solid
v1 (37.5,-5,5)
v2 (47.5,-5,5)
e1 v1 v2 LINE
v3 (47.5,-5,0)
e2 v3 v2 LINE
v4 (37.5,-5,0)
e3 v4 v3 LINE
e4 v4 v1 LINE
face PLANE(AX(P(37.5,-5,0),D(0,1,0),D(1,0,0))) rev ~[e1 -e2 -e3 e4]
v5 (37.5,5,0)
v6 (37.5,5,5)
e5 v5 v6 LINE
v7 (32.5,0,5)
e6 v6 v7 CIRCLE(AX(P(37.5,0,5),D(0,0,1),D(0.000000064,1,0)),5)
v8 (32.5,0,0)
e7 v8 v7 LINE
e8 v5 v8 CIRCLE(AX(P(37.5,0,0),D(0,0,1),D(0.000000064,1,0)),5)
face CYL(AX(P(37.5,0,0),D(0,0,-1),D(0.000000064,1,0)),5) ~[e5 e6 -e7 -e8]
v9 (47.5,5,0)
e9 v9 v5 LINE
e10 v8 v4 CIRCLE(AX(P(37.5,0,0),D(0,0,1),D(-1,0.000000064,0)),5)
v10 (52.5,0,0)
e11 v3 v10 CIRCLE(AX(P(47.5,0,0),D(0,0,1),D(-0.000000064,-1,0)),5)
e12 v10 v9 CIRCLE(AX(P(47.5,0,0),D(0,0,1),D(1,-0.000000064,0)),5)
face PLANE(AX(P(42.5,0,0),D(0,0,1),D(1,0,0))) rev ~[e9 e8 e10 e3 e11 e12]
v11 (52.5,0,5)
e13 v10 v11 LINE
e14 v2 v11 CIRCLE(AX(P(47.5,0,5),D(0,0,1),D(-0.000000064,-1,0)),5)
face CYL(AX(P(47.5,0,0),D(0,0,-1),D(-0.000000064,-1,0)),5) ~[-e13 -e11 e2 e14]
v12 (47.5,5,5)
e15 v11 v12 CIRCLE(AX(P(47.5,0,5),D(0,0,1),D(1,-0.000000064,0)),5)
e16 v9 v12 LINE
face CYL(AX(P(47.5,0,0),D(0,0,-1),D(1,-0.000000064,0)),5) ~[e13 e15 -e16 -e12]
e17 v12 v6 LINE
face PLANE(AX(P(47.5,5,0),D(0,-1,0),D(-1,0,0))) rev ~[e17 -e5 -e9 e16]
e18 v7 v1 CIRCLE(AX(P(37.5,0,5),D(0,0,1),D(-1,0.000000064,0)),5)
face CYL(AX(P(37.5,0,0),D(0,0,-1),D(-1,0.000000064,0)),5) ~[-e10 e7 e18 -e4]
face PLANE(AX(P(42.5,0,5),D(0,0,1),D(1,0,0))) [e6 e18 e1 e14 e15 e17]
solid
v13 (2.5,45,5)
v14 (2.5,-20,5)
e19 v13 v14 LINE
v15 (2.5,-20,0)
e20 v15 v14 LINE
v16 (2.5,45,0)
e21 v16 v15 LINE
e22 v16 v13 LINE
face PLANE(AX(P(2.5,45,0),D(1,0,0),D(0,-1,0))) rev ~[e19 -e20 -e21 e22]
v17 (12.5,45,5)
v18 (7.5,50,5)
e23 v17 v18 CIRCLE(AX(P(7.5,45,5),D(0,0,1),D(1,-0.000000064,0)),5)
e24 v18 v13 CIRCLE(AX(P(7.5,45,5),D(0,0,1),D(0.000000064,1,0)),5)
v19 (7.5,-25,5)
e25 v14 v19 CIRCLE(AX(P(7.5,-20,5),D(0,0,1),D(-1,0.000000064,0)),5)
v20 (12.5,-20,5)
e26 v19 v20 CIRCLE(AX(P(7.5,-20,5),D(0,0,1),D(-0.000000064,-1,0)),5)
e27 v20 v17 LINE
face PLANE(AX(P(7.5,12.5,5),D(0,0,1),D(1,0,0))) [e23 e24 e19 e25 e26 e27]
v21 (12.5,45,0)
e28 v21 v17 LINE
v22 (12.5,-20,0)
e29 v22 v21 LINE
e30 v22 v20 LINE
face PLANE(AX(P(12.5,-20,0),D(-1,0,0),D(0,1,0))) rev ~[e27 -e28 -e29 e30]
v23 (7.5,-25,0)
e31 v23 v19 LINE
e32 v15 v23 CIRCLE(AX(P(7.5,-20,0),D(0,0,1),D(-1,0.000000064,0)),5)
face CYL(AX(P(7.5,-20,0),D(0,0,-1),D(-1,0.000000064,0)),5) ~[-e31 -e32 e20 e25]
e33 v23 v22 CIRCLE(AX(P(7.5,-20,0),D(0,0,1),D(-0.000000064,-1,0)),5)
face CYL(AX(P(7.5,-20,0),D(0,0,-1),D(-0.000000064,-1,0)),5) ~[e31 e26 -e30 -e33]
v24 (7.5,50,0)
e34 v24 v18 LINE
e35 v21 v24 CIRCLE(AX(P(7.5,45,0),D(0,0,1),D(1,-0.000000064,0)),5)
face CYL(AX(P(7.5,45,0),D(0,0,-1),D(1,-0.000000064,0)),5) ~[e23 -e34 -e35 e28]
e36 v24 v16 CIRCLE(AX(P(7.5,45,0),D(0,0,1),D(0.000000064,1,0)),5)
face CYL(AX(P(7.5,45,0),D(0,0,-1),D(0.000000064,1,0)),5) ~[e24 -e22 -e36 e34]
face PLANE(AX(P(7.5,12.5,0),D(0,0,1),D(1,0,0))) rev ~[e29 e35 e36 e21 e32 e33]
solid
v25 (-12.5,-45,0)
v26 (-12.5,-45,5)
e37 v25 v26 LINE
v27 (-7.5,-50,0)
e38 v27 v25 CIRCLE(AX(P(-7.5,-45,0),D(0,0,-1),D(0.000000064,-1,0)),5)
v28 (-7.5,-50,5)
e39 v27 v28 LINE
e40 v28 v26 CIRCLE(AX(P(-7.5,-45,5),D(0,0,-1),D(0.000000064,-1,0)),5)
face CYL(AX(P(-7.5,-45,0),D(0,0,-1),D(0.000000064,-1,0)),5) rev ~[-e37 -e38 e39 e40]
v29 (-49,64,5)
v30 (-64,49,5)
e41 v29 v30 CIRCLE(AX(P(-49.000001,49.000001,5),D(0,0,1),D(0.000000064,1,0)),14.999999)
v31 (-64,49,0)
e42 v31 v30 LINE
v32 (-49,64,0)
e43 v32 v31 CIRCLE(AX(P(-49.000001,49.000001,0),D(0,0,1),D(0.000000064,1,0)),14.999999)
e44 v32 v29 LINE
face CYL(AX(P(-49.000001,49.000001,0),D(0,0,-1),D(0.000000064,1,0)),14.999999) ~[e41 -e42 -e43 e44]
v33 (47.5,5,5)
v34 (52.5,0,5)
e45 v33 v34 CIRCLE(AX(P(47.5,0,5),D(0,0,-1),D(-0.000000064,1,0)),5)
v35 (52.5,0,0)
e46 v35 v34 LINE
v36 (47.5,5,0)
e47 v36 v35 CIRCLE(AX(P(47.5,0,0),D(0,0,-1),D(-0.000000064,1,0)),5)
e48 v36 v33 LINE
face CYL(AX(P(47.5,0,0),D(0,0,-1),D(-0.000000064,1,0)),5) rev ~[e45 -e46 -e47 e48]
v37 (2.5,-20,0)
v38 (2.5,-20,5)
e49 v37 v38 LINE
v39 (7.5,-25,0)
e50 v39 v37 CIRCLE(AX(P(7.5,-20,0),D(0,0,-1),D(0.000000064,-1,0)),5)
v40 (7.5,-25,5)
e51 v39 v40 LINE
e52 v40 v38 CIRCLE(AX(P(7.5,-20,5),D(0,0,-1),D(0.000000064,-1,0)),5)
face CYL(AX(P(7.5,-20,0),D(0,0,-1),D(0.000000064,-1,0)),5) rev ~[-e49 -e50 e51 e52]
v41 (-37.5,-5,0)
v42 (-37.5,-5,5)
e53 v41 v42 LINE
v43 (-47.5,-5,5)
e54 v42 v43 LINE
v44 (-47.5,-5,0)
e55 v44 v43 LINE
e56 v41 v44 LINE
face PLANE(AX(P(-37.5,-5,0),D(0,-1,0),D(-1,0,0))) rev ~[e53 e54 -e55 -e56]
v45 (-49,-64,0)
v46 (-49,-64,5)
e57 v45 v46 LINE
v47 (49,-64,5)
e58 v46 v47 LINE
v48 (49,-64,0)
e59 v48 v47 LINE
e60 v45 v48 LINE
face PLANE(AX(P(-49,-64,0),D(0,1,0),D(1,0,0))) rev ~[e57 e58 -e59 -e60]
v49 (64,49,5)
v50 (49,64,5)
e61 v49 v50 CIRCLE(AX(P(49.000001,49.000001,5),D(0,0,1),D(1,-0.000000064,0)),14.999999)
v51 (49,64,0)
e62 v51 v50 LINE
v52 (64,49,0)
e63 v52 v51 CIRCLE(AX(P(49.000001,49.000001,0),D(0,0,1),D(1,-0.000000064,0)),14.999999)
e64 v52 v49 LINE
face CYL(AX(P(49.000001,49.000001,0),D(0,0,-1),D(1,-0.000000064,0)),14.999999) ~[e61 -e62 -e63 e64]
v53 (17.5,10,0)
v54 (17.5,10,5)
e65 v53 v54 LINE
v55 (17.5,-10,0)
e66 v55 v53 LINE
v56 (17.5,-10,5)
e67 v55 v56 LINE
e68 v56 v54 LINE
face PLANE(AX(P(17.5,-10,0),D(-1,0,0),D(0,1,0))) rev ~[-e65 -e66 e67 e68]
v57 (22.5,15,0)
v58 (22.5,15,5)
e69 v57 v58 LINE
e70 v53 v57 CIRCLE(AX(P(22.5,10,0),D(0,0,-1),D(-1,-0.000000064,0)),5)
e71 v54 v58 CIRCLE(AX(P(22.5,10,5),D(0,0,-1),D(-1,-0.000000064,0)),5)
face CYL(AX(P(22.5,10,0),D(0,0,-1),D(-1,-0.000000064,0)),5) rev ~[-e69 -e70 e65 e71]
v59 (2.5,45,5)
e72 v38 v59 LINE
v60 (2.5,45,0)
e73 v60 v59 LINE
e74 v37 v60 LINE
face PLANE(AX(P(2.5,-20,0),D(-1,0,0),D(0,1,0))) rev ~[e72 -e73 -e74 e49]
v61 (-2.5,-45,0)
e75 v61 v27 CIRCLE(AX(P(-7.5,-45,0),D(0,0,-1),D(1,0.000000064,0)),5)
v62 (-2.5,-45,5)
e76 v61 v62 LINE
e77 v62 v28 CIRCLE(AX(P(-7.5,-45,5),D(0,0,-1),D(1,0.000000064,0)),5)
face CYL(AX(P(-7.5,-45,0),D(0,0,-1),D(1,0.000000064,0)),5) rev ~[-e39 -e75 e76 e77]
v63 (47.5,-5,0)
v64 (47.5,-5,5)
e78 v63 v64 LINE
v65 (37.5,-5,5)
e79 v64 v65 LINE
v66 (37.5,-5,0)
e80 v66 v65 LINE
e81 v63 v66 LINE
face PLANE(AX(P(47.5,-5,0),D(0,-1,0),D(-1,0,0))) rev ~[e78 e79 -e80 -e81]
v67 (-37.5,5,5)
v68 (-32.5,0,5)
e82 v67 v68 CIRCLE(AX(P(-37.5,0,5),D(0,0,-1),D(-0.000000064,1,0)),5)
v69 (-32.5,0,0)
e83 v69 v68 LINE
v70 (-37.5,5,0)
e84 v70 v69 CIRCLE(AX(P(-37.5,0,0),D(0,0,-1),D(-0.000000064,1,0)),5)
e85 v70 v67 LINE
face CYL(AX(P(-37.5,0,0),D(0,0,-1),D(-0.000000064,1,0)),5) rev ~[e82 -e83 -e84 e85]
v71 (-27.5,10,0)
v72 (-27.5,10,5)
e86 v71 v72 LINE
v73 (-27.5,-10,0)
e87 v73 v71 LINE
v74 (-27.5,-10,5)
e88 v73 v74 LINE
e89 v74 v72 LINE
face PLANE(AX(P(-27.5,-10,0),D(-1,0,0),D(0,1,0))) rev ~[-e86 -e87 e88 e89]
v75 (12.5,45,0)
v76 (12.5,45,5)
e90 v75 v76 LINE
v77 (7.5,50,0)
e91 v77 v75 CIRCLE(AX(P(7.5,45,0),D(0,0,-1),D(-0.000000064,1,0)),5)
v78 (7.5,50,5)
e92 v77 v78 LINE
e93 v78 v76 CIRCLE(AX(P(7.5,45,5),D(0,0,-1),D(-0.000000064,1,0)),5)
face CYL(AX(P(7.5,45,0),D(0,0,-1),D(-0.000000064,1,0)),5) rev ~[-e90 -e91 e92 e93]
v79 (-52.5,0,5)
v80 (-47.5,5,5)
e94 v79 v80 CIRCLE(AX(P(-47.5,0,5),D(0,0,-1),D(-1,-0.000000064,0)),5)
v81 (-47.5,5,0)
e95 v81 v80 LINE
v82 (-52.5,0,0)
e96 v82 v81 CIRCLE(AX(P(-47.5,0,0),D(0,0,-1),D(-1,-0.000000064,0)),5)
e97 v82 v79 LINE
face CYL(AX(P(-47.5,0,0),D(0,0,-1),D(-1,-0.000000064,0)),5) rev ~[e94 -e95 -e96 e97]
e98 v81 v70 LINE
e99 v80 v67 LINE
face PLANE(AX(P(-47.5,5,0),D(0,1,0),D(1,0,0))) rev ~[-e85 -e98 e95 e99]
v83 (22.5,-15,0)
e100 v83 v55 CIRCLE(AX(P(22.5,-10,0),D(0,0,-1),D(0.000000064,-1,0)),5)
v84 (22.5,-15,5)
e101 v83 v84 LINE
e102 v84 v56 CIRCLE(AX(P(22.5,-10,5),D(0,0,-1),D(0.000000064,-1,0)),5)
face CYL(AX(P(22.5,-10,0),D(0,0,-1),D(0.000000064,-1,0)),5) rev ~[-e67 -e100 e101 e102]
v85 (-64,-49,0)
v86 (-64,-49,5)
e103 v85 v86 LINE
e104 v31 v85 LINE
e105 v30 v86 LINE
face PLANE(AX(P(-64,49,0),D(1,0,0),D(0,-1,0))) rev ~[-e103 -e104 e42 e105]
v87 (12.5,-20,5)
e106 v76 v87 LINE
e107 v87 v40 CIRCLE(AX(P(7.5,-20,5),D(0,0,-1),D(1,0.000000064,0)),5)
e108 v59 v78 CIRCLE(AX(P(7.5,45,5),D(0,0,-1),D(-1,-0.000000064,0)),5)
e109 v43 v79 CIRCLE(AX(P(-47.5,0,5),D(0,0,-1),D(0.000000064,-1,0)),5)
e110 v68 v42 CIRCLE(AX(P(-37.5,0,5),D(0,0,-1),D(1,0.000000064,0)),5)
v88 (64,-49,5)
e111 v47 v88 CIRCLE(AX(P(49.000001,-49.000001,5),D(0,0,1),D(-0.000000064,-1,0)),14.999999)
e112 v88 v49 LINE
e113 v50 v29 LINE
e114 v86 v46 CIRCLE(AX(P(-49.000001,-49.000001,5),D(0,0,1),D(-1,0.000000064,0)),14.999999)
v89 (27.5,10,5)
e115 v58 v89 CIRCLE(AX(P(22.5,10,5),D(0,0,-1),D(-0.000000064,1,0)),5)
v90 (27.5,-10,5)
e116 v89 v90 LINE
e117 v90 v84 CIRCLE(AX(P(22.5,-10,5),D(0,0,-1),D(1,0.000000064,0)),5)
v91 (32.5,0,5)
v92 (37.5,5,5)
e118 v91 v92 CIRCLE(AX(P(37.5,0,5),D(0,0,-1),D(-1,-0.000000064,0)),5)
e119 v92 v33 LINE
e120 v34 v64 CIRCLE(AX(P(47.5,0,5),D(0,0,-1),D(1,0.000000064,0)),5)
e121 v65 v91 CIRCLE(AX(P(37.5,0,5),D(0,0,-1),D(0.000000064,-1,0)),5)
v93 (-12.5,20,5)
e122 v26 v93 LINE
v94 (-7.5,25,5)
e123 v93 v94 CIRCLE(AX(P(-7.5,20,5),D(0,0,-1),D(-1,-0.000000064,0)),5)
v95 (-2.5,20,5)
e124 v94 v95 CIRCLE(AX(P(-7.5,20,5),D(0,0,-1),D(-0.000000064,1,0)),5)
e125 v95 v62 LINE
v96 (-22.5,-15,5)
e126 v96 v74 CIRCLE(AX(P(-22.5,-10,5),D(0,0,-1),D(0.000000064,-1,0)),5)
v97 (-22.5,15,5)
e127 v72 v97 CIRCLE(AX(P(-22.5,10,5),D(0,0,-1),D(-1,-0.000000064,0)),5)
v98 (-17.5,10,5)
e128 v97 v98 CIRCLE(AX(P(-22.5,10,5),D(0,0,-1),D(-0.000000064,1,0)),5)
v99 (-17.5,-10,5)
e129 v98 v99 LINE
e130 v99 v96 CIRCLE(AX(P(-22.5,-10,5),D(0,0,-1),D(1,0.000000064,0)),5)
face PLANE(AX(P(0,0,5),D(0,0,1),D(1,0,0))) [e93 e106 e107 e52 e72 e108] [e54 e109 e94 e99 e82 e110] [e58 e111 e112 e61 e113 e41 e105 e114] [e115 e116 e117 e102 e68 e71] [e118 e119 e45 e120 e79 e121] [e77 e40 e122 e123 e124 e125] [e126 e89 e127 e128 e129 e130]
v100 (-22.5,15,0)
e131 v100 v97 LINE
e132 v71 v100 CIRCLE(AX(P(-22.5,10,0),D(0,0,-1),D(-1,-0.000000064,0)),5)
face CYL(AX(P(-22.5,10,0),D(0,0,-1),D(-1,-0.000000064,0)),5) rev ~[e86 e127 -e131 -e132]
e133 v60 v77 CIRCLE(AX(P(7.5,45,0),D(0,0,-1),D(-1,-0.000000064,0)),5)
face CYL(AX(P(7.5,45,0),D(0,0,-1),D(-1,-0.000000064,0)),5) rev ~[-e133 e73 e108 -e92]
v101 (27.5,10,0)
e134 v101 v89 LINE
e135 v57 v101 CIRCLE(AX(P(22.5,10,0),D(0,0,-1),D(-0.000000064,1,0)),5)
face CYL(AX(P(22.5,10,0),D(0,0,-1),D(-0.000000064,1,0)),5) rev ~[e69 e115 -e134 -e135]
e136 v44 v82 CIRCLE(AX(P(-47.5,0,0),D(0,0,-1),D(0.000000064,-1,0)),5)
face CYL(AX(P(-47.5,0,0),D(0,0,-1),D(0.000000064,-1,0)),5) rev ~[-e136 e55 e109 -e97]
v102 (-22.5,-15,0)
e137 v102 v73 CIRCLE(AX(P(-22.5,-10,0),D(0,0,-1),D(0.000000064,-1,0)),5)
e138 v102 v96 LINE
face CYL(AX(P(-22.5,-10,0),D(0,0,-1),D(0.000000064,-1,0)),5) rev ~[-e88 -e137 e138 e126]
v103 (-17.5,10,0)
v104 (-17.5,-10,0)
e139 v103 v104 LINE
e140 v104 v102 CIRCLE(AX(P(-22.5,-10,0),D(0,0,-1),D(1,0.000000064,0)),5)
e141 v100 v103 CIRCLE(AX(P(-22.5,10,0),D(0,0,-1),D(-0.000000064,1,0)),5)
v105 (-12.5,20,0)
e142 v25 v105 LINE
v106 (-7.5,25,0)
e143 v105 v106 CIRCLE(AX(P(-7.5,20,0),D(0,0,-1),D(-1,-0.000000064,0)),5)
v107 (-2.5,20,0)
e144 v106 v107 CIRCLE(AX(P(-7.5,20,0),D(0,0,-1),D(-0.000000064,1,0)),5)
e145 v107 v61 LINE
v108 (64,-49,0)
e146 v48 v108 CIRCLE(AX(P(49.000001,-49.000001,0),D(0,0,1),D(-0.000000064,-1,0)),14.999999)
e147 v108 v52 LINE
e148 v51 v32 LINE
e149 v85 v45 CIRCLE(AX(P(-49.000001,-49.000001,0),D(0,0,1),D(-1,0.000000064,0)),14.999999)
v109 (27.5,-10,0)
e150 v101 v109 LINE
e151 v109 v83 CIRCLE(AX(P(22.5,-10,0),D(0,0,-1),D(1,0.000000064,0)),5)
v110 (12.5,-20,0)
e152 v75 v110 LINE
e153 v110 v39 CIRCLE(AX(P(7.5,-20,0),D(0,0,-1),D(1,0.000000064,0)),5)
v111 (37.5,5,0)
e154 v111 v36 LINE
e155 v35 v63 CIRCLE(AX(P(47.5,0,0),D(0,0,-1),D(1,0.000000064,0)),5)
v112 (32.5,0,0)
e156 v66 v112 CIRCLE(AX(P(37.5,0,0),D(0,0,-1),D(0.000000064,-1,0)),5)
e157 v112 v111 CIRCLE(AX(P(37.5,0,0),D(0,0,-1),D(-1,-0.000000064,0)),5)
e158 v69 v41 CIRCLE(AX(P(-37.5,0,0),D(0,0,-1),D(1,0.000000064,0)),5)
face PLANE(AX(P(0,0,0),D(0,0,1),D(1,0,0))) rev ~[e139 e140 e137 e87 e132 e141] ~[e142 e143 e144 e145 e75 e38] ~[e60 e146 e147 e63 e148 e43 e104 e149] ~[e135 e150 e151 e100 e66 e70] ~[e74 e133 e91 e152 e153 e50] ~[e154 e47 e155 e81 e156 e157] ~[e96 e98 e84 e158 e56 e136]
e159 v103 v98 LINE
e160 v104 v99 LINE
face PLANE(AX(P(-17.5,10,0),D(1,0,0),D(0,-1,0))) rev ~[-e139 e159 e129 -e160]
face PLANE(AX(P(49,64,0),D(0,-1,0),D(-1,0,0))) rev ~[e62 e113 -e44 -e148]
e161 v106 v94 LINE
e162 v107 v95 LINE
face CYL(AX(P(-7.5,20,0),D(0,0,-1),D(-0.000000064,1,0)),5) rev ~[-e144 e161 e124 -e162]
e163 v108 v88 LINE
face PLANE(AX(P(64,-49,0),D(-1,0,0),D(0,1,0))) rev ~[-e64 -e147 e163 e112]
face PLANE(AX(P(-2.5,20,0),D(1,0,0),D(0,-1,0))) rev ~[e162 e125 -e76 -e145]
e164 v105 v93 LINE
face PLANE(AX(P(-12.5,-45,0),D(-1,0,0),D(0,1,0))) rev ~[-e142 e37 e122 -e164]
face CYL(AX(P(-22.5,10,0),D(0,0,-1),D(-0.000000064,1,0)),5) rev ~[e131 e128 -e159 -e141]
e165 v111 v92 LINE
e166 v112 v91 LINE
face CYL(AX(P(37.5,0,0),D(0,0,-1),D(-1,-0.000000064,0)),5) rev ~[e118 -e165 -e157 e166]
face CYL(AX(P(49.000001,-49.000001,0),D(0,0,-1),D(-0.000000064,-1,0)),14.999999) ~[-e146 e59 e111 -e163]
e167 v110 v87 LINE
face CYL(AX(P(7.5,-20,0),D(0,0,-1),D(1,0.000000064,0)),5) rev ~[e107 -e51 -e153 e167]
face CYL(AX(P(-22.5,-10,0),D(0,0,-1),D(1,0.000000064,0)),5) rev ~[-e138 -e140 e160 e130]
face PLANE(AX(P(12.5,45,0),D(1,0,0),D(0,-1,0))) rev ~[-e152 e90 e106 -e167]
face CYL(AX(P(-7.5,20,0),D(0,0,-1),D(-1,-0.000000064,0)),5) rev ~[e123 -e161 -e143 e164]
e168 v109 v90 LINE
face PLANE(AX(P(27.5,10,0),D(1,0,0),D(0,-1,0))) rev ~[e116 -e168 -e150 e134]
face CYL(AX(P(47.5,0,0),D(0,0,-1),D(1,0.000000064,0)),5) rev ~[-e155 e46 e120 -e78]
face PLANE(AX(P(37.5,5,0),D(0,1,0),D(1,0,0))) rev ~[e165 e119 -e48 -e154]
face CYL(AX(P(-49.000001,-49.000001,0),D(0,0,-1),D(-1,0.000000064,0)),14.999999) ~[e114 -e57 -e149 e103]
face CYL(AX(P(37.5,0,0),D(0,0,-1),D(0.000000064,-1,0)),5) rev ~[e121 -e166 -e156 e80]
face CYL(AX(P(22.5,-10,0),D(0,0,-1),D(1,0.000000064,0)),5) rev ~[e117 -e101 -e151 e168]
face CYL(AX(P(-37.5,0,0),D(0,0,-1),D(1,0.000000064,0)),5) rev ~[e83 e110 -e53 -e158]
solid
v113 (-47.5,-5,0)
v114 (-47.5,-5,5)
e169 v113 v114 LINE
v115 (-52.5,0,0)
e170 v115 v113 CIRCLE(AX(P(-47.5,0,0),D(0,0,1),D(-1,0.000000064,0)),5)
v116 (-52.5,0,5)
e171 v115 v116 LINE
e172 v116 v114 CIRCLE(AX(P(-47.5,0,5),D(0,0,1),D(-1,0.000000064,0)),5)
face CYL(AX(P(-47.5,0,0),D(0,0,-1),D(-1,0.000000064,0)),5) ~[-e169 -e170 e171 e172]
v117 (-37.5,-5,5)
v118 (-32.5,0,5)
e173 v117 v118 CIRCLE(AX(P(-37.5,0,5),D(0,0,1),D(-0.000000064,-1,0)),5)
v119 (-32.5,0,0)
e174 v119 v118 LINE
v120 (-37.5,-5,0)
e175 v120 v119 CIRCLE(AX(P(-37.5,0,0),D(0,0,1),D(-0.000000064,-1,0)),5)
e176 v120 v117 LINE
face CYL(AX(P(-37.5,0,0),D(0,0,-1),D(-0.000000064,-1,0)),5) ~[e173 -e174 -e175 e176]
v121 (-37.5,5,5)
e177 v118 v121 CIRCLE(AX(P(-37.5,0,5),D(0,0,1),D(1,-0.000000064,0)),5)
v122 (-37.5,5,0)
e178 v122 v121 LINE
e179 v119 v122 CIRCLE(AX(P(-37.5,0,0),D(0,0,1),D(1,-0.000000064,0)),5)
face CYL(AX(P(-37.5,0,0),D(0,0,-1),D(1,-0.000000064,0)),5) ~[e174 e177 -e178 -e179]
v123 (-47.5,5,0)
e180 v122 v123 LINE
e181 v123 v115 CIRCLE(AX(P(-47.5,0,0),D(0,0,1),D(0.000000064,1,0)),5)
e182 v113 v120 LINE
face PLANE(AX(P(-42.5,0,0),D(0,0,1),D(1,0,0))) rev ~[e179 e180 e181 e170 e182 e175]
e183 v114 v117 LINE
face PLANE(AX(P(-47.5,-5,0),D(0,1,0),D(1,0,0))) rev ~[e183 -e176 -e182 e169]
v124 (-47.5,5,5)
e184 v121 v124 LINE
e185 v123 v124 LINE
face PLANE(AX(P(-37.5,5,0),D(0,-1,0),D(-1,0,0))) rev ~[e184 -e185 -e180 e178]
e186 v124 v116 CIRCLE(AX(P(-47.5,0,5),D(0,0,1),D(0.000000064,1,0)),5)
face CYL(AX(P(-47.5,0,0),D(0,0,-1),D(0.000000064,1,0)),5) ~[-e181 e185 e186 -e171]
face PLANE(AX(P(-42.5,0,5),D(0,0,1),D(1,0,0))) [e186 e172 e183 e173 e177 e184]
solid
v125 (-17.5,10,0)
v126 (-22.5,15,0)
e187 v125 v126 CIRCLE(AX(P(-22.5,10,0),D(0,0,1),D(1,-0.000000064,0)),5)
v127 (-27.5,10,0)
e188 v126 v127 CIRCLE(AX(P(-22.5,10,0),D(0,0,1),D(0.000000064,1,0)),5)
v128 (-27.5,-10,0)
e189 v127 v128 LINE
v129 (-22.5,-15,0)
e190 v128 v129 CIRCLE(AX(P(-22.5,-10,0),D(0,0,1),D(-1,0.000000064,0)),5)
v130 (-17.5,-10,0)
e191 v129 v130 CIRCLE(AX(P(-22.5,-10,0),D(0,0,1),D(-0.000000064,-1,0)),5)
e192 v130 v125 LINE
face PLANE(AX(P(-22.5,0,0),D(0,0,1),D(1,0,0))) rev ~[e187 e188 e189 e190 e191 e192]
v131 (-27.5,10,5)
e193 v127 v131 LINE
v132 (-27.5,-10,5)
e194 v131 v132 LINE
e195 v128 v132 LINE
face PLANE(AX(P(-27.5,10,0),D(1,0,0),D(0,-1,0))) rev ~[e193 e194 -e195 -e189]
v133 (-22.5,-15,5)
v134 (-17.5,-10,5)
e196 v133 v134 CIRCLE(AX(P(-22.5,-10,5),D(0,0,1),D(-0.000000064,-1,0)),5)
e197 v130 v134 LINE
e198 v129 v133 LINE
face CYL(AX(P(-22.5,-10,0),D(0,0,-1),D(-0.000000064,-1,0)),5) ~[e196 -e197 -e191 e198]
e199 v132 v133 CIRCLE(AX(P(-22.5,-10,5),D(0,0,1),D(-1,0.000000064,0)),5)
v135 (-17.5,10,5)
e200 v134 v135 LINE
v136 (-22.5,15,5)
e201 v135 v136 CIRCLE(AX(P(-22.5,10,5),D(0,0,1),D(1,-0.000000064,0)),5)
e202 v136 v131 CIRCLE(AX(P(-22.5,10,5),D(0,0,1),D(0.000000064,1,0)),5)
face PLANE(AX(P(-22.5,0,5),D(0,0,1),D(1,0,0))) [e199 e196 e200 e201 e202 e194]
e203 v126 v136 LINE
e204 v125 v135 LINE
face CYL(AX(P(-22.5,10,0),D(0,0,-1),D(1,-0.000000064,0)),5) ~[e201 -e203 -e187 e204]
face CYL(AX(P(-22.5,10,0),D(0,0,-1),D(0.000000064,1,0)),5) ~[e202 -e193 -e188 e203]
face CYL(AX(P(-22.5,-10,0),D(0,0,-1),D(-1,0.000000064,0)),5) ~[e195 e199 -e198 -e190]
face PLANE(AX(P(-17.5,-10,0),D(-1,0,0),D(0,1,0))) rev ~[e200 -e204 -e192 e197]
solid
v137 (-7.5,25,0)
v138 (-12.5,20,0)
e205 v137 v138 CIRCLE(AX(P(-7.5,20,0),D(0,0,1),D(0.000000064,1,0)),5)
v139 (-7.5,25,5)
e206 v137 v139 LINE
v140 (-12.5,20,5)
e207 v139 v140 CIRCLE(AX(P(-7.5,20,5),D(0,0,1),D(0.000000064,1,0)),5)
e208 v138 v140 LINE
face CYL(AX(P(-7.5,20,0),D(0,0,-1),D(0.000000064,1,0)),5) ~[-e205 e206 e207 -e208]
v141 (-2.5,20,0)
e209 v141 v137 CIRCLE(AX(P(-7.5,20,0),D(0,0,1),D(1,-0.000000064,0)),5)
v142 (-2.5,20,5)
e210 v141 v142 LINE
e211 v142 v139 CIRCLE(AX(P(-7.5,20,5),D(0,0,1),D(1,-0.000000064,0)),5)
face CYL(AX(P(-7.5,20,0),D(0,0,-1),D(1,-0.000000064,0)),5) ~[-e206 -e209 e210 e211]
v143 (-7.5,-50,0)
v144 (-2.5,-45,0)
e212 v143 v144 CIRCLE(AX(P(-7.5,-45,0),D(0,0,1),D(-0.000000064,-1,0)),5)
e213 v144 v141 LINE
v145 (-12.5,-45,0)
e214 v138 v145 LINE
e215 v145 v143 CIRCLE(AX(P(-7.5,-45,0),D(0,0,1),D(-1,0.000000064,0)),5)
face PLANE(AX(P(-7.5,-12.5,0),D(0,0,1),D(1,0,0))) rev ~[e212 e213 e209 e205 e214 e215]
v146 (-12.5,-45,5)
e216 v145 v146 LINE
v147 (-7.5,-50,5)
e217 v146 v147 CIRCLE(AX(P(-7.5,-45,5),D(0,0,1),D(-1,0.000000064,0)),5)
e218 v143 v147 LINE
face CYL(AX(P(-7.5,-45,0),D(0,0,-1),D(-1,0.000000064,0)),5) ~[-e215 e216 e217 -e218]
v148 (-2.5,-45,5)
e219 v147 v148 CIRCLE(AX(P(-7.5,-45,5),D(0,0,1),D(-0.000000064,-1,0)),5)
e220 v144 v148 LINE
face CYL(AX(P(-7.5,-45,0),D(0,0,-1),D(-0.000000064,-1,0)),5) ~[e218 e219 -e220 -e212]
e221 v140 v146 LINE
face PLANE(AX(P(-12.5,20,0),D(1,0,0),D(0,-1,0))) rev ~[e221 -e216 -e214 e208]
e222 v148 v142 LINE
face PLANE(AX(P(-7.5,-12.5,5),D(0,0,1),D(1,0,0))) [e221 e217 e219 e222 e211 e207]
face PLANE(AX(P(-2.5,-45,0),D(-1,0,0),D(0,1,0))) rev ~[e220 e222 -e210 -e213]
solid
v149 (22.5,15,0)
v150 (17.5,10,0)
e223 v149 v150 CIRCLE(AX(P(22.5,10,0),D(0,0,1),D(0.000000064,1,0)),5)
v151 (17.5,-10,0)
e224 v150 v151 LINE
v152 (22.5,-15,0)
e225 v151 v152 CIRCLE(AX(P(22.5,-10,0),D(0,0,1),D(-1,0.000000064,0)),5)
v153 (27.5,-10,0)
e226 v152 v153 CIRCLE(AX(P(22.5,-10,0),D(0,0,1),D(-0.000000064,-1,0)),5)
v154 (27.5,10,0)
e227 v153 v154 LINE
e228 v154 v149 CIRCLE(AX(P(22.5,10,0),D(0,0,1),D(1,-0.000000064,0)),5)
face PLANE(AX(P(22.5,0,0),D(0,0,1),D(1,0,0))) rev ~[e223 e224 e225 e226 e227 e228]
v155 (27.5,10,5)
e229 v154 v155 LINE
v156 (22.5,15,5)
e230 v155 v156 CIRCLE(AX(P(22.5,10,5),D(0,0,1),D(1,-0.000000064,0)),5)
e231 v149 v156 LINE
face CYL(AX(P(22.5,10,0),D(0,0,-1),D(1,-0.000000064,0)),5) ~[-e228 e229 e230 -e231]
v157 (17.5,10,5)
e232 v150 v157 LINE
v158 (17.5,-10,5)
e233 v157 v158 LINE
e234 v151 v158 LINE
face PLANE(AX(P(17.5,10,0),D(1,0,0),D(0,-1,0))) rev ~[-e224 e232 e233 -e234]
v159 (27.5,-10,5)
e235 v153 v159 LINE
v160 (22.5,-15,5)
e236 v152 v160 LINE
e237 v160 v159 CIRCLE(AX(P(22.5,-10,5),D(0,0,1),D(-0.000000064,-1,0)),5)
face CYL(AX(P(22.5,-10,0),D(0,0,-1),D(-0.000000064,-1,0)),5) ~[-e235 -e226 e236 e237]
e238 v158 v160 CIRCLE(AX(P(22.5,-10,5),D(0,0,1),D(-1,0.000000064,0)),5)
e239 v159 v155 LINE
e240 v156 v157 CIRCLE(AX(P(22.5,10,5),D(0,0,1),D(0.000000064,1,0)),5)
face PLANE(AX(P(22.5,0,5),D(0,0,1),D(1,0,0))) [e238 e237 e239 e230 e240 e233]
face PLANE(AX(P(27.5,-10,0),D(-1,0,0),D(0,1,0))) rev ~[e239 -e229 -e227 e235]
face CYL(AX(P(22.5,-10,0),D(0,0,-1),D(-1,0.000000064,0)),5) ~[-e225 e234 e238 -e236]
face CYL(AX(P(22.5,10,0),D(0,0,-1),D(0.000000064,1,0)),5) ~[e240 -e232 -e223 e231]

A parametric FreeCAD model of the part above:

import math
import FreeCAD as App
import Part
import Sketcher
from FreeCAD import Vector

doc = App.newDocument("Part")
body = doc.addObject("PartDesign::Body", "Body")

# Sketch on XY plane
sketch1 = doc.addObject("Sketcher::SketchObject", "Sketch")
body.addObject(sketch1)
sketch1.AttachmentSupport = (doc.XY_Plane, [""])
sketch1.MapMode = "FlatFace"
sketch1.addGeometry([
    Part.ArcOfCircle(Part.Circle(Vector(49.000001, 49.000001, 0), Vector(0, 0, 1), 14.999999), math.radians(-0.000004), math.radians(90.000004)),  # 0
    Part.LineSegment(Vector(49, 64, 0), Vector(-49, 64, 0)),  # 1
    Part.ArcOfCircle(Part.Circle(Vector(-49.000001, 49.000001, 0), Vector(0, 0, 1), 14.999999), math.radians(89.999996), math.radians(180.000004)),  # 2
    Part.LineSegment(Vector(-64, 49, 0), Vector(-64, -49, 0)),  # 3
    Part.ArcOfCircle(Part.Circle(Vector(-49.000001, -49.000001, 0), Vector(0, 0, 1), 14.999999), math.radians(179.999996), math.radians(270.000004)),  # 4
    Part.LineSegment(Vector(-49, -64, 0), Vector(49, -64, 0)),  # 5
    Part.ArcOfCircle(Part.Circle(Vector(49.000001, -49.000001, 0), Vector(0, 0, 1), 14.999999), math.radians(-90.000004), math.radians(0.000004)),  # 6
    Part.LineSegment(Vector(64, -49, 0), Vector(64, 49, 0)),  # 7
    Part.ArcOfCircle(Part.Circle(Vector(-7.5, 20, 0), Vector(0, 0, 1), 5), math.radians(89.999996), math.radians(180.000004)),  # 8
    Part.ArcOfCircle(Part.Circle(Vector(-7.5, 20, 0), Vector(0, 0, 1), 5), math.radians(-0.000004), math.radians(90.000004)),  # 9
    Part.LineSegment(Vector(-2.5, 20, 0), Vector(-2.5, -45, 0)),  # 10
    Part.ArcOfCircle(Part.Circle(Vector(-7.5, -45, 0), Vector(0, 0, 1), 5), math.radians(-90.000004), math.radians(0.000004)),  # 11
    Part.ArcOfCircle(Part.Circle(Vector(-7.5, -45, 0), Vector(0, 0, 1), 5), math.radians(179.999996), math.radians(270.000004)),  # 12
    Part.LineSegment(Vector(-12.5, -45, 0), Vector(-12.5, 20, 0)),  # 13
    Part.ArcOfCircle(Part.Circle(Vector(-47.5, 0, 0), Vector(0, 0, 1), 5), math.radians(89.999996), math.radians(180.000004)),  # 14
    Part.LineSegment(Vector(-47.5, 5, 0), Vector(-37.5, 5, 0)),  # 15
    Part.ArcOfCircle(Part.Circle(Vector(-37.5, 0, 0), Vector(0, 0, 1), 5), math.radians(-0.000004), math.radians(90.000004)),  # 16
    Part.ArcOfCircle(Part.Circle(Vector(-37.5, 0, 0), Vector(0, 0, 1), 5), math.radians(-90.000004), math.radians(0.000004)),  # 17
    Part.LineSegment(Vector(-37.5, -5, 0), Vector(-47.5, -5, 0)),  # 18
    Part.ArcOfCircle(Part.Circle(Vector(-47.5, 0, 0), Vector(0, 0, 1), 5), math.radians(179.999996), math.radians(270.000004)),  # 19
    Part.ArcOfCircle(Part.Circle(Vector(-22.5, 10, 0), Vector(0, 0, 1), 5), math.radians(89.999996), math.radians(180.000004)),  # 20
    Part.ArcOfCircle(Part.Circle(Vector(-22.5, 10, 0), Vector(0, 0, 1), 5), math.radians(-0.000004), math.radians(90.000004)),  # 21
    Part.LineSegment(Vector(-17.5, 10, 0), Vector(-17.5, -10, 0)),  # 22
    Part.ArcOfCircle(Part.Circle(Vector(-22.5, -10, 0), Vector(0, 0, 1), 5), math.radians(-90.000004), math.radians(0.000004)),  # 23
    Part.ArcOfCircle(Part.Circle(Vector(-22.5, -10, 0), Vector(0, 0, 1), 5), math.radians(179.999996), math.radians(270.000004)),  # 24
    Part.LineSegment(Vector(-27.5, -10, 0), Vector(-27.5, 10, 0)),  # 25
    Part.ArcOfCircle(Part.Circle(Vector(7.5, -20, 0), Vector(0, 0, 1), 5), math.radians(-90.000004), math.radians(0.000004)),  # 26
    Part.ArcOfCircle(Part.Circle(Vector(7.5, -20, 0), Vector(0, 0, 1), 5), math.radians(179.999996), math.radians(270.000004)),  # 27
    Part.LineSegment(Vector(2.5, -20, 0), Vector(2.5, 45, 0)),  # 28
    Part.ArcOfCircle(Part.Circle(Vector(7.5, 45, 0), Vector(0, 0, 1), 5), math.radians(89.999996), math.radians(180.000004)),  # 29
    Part.ArcOfCircle(Part.Circle(Vector(7.5, 45, 0), Vector(0, 0, 1), 5), math.radians(-0.000004), math.radians(90.000004)),  # 30
    Part.LineSegment(Vector(12.5, 45, 0), Vector(12.5, -20, 0)),  # 31
    Part.ArcOfCircle(Part.Circle(Vector(22.5, 10, 0), Vector(0, 0, 1), 5), math.radians(-0.000004), math.radians(90.000004)),  # 32
    Part.LineSegment(Vector(27.5, 10, 0), Vector(27.5, -10, 0)),  # 33
    Part.ArcOfCircle(Part.Circle(Vector(22.5, -10, 0), Vector(0, 0, 1), 5), math.radians(-90.000004), math.radians(0.000004)),  # 34
    Part.ArcOfCircle(Part.Circle(Vector(22.5, -10, 0), Vector(0, 0, 1), 5), math.radians(179.999996), math.radians(270.000004)),  # 35
    Part.LineSegment(Vector(17.5, -10, 0), Vector(17.5, 10, 0)),  # 36
    Part.ArcOfCircle(Part.Circle(Vector(22.5, 10, 0), Vector(0, 0, 1), 5), math.radians(89.999996), math.radians(180.000004)),  # 37
    Part.ArcOfCircle(Part.Circle(Vector(47.5, 0, 0), Vector(0, 0, 1), 5), math.radians(-90.000004), math.radians(0.000004)),  # 38
    Part.LineSegment(Vector(47.5, -5, 0), Vector(37.5, -5, 0)),  # 39
    Part.ArcOfCircle(Part.Circle(Vector(37.5, 0, 0), Vector(0, 0, 1), 5), math.radians(179.999996), math.radians(270.000004)),  # 40
    Part.ArcOfCircle(Part.Circle(Vector(37.5, 0, 0), Vector(0, 0, 1), 5), math.radians(89.999996), math.radians(180.000004)),  # 41
    Part.LineSegment(Vector(37.5, 5, 0), Vector(47.5, 5, 0)),  # 42
    Part.ArcOfCircle(Part.Circle(Vector(47.5, 0, 0), Vector(0, 0, 1), 5), math.radians(-0.000004), math.radians(90.000004)),  # 43
], False)
sketch1.addConstraint([
    Sketcher.Constraint("Tangent", 0, 2, 1, 1),
    Sketcher.Constraint("Tangent", 1, 2, 2, 1),
    Sketcher.Constraint("Tangent", 2, 2, 3, 1),
    Sketcher.Constraint("Tangent", 3, 2, 4, 1),
    Sketcher.Constraint("Tangent", 4, 2, 5, 1),
    Sketcher.Constraint("Tangent", 5, 2, 6, 1),
    Sketcher.Constraint("Tangent", 6, 2, 7, 1),
    Sketcher.Constraint("Tangent", 7, 2, 0, 1),
    Sketcher.Constraint("Tangent", 8, 1, 9, 2),
    Sketcher.Constraint("Tangent", 9, 1, 10, 1),
    Sketcher.Constraint("Tangent", 10, 2, 11, 2),
    Sketcher.Constraint("Tangent", 11, 1, 12, 2),
    Sketcher.Constraint("Tangent", 12, 1, 13, 1),
    Sketcher.Constraint("Tangent", 13, 2, 8, 2),
    Sketcher.Constraint("Tangent", 14, 1, 15, 1),
    Sketcher.Constraint("Tangent", 15, 2, 16, 2),
    Sketcher.Constraint("Tangent", 16, 1, 17, 2),
    Sketcher.Constraint("Tangent", 17, 1, 18, 1),
    Sketcher.Constraint("Tangent", 18, 2, 19, 2),
    Sketcher.Constraint("Tangent", 19, 1, 14, 2),
    Sketcher.Constraint("Tangent", 20, 1, 21, 2),
    Sketcher.Constraint("Tangent", 21, 1, 22, 1),
    Sketcher.Constraint("Tangent", 22, 2, 23, 2),
    Sketcher.Constraint("Tangent", 23, 1, 24, 2),
    Sketcher.Constraint("Tangent", 24, 1, 25, 1),
    Sketcher.Constraint("Tangent", 25, 2, 20, 2),
    Sketcher.Constraint("Tangent", 26, 1, 27, 2),
    Sketcher.Constraint("Tangent", 27, 1, 28, 1),
    Sketcher.Constraint("Tangent", 28, 2, 29, 2),
    Sketcher.Constraint("Tangent", 29, 1, 30, 2),
    Sketcher.Constraint("Tangent", 30, 1, 31, 1),
    Sketcher.Constraint("Tangent", 31, 2, 26, 2),
    Sketcher.Constraint("Tangent", 32, 1, 33, 1),
    Sketcher.Constraint("Tangent", 33, 2, 34, 2),
    Sketcher.Constraint("Tangent", 34, 1, 35, 2),
    Sketcher.Constraint("Tangent", 35, 1, 36, 1),
    Sketcher.Constraint("Tangent", 36, 2, 37, 2),
    Sketcher.Constraint("Tangent", 37, 1, 32, 2),
    Sketcher.Constraint("Tangent", 38, 1, 39, 1),
    Sketcher.Constraint("Tangent", 39, 2, 40, 2),
    Sketcher.Constraint("Tangent", 40, 1, 41, 2),
    Sketcher.Constraint("Tangent", 41, 1, 42, 1),
    Sketcher.Constraint("Tangent", 42, 2, 43, 2),
    Sketcher.Constraint("Tangent", 43, 1, 38, 2),
    Sketcher.Constraint("Horizontal", 1),
    Sketcher.Constraint("Vertical", 3),
    Sketcher.Constraint("Horizontal", 5),
    Sketcher.Constraint("Vertical", 7),
    Sketcher.Constraint("Vertical", 10),
    Sketcher.Constraint("Vertical", 13),
    Sketcher.Constraint("Horizontal", 15),
    Sketcher.Constraint("Horizontal", 18),
    Sketcher.Constraint("Vertical", 22),
    Sketcher.Constraint("Vertical", 25),
    Sketcher.Constraint("Vertical", 28),
    Sketcher.Constraint("Vertical", 31),
    Sketcher.Constraint("Vertical", 33),
    Sketcher.Constraint("Vertical", 36),
    Sketcher.Constraint("Horizontal", 39),
    Sketcher.Constraint("Horizontal", 42),
    Sketcher.Constraint("Equal", 0, 2),
    Sketcher.Constraint("Equal", 2, 4),
    Sketcher.Constraint("Equal", 4, 6),
    Sketcher.Constraint("Equal", 8, 9),
    Sketcher.Constraint("Equal", 9, 11),
    Sketcher.Constraint("Equal", 12, 14),
    Sketcher.Constraint("Equal", 14, 16),
    Sketcher.Constraint("Equal", 16, 17),
    Sketcher.Constraint("Equal", 19, 20),
    Sketcher.Constraint("Equal", 20, 21),
    Sketcher.Constraint("Equal", 21, 23),
    Sketcher.Constraint("Equal", 24, 26),
    Sketcher.Constraint("Equal", 26, 27),
    Sketcher.Constraint("Equal", 27, 29),
    Sketcher.Constraint("Equal", 30, 32),
    Sketcher.Constraint("Equal", 32, 34),
    Sketcher.Constraint("Equal", 34, 35),
    Sketcher.Constraint("Equal", 37, 38),
    Sketcher.Constraint("Equal", 38, 40),
    Sketcher.Constraint("Equal", 40, 41),
    Sketcher.Constraint("Symmetric", 0, 3, 4, 3, -1, 1),
    Sketcher.Constraint("Symmetric", 8, 3, 26, 3, -1, 1),
    Sketcher.Constraint("Symmetric", 23, 3, 32, 3, -1, 1),
    Sketcher.Constraint("Symmetric", 14, 3, 38, 3, -1, 1),
    Sketcher.Constraint("Symmetric", 11, 1, 29, 1, -1, 1),
    Sketcher.Constraint("Symmetric", 20, 1, 34, 1, -1, 1),
    Sketcher.Constraint("Symmetric", 16, 1, 40, 1, -1, 1),
    Sketcher.Constraint("Symmetric", 23, 1, 34, 1, -2),
    Sketcher.Constraint("PointOnObject", 14, 3, -1),
    Sketcher.Constraint("PointOnObject", 16, 1, -1),
    Sketcher.Constraint("PointOnObject", 19, 1, -1),
    Sketcher.Constraint("PointOnObject", 43, 1, -1),
    Sketcher.Constraint("Vertical", 12, 3, 8, 1),
    Sketcher.Constraint("Vertical", 8, 1, 11, 1),
    Sketcher.Constraint("Vertical", 24, 3, 20, 1),
    Sketcher.Constraint("Vertical", 30, 3, 26, 1),
    Sketcher.Constraint("Vertical", 34, 1, 37, 1),
    Sketcher.Constraint("Equal", 5, 3),
    Sketcher.Constraint("Radius", 0, 14.999999),
    Sketcher.Constraint("Radius", 8, 5.0),
    Sketcher.Constraint("DistanceX", 1, 2, 1, 1, 98.0),
    Sketcher.Constraint("DistanceX", 15, 1, 15, 2, 10.0),
    Sketcher.Constraint("DistanceY", 10, 2, 10, 1, 65.0),
    Sketcher.Constraint("DistanceY", 22, 2, 22, 1, 20.0),
    Sketcher.Constraint("DistanceY", -1, 1, 8, 3, 20.0),
    Sketcher.Constraint("DistanceX", 8, 3, -1, 1, 7.5),
    Sketcher.Constraint("DistanceX", 14, 3, -1, 1, 47.5),
    Sketcher.Constraint("DistanceX", 20, 3, -1, 1, 22.5),
])
pad1 = doc.addObject("PartDesign::Pad", "Pad")
body.addObject(pad1)
pad1.Profile = sketch1
pad1.Length = 5
body2 = doc.addObject("PartDesign::Body", "Body001")

# Sketch on XY plane
sketch2 = doc.addObject("Sketcher::SketchObject", "Sketch001")
body2.addObject(sketch2)
sketch2.AttachmentSupport = (doc.getObject("XY_Plane001"), [""])
sketch2.MapMode = "FlatFace"
sketch2.addGeometry([
    Part.ArcOfCircle(Part.Circle(Vector(-37.5, 0, 0), Vector(0, 0, 1), 5), math.radians(-0.000004), math.radians(90.000004)),  # 0
    Part.LineSegment(Vector(-37.5, 5, 0), Vector(-47.5, 5, 0)),  # 1
    Part.ArcOfCircle(Part.Circle(Vector(-47.5, 0, 0), Vector(0, 0, 1), 5), math.radians(89.999996), math.radians(180.000004)),  # 2
    Part.ArcOfCircle(Part.Circle(Vector(-47.5, 0, 0), Vector(0, 0, 1), 5), math.radians(179.999996), math.radians(270.000004)),  # 3
    Part.LineSegment(Vector(-47.5, -5, 0), Vector(-37.5, -5, 0)),  # 4
    Part.ArcOfCircle(Part.Circle(Vector(-37.5, 0, 0), Vector(0, 0, 1), 5), math.radians(-90.000004), math.radians(0.000004)),  # 5
], False)
sketch2.addConstraint([
    Sketcher.Constraint("Tangent", 0, 2, 1, 1),
    Sketcher.Constraint("Tangent", 1, 2, 2, 1),
    Sketcher.Constraint("Tangent", 2, 2, 3, 1),
    Sketcher.Constraint("Tangent", 3, 2, 4, 1),
    Sketcher.Constraint("Tangent", 4, 2, 5, 1),
    Sketcher.Constraint("Tangent", 5, 2, 0, 1),
    Sketcher.Constraint("Horizontal", 1),
    Sketcher.Constraint("Horizontal", 4),
    Sketcher.Constraint("Equal", 0, 2),
    Sketcher.Constraint("Equal", 2, 3),
    Sketcher.Constraint("PointOnObject", 0, 3, -1),
    Sketcher.Constraint("PointOnObject", 2, 2, -1),
    Sketcher.Constraint("PointOnObject", 5, 2, -1),
    Sketcher.Constraint("Radius", 0, 5.0),
    Sketcher.Constraint("DistanceX", 1, 2, 1, 1, 10.0),
    Sketcher.Constraint("DistanceX", 0, 3, -1, 1, 37.5),
])
pad2 = doc.addObject("PartDesign::Pad", "Pad001")
body2.addObject(pad2)
pad2.Profile = sketch2
pad2.Length = 5
body3 = doc.addObject("PartDesign::Body", "Body002")

# Sketch on XY plane
sketch3 = doc.addObject("Sketcher::SketchObject", "Sketch002")
body3.addObject(sketch3)
sketch3.AttachmentSupport = (doc.getObject("XY_Plane002"), [""])
sketch3.MapMode = "FlatFace"
sketch3.addGeometry([
    Part.LineSegment(Vector(-17.5, -10, 0), Vector(-17.5, 10, 0)),  # 0
    Part.ArcOfCircle(Part.Circle(Vector(-22.5, 10, 0), Vector(0, 0, 1), 5), math.radians(-0.000004), math.radians(90.000004)),  # 1
    Part.ArcOfCircle(Part.Circle(Vector(-22.5, 10, 0), Vector(0, 0, 1), 5), math.radians(89.999996), math.radians(180.000004)),  # 2
    Part.LineSegment(Vector(-27.5, 10, 0), Vector(-27.5, -10, 0)),  # 3
    Part.ArcOfCircle(Part.Circle(Vector(-22.5, -10, 0), Vector(0, 0, 1), 5), math.radians(179.999996), math.radians(270.000004)),  # 4
    Part.ArcOfCircle(Part.Circle(Vector(-22.5, -10, 0), Vector(0, 0, 1), 5), math.radians(-90.000004), math.radians(0.000004)),  # 5
], False)
sketch3.addConstraint([
    Sketcher.Constraint("Tangent", 0, 2, 1, 1),
    Sketcher.Constraint("Tangent", 1, 2, 2, 1),
    Sketcher.Constraint("Tangent", 2, 2, 3, 1),
    Sketcher.Constraint("Tangent", 3, 2, 4, 1),
    Sketcher.Constraint("Tangent", 4, 2, 5, 1),
    Sketcher.Constraint("Tangent", 5, 2, 0, 1),
    Sketcher.Constraint("Vertical", 0),
    Sketcher.Constraint("Vertical", 3),
    Sketcher.Constraint("Equal", 1, 2),
    Sketcher.Constraint("Equal", 2, 4),
    Sketcher.Constraint("Symmetric", 1, 2, 4, 2, -1),
    Sketcher.Constraint("Vertical", 5, 3, 1, 2),
    Sketcher.Constraint("Radius", 1, 5.0),
    Sketcher.Constraint("DistanceY", 0, 1, 0, 2, 20.0),
    Sketcher.Constraint("DistanceX", 1, 3, -1, 1, 22.5),
])
pad3 = doc.addObject("PartDesign::Pad", "Pad002")
body3.addObject(pad3)
pad3.Profile = sketch3
pad3.Length = 5
body4 = doc.addObject("PartDesign::Body", "Body003")

# Sketch on XY plane
sketch4 = doc.addObject("Sketcher::SketchObject", "Sketch003")
body4.addObject(sketch4)
sketch4.AttachmentSupport = (doc.getObject("XY_Plane003"), [""])
sketch4.MapMode = "FlatFace"
sketch4.addGeometry([
    Part.ArcOfCircle(Part.Circle(Vector(-7.5, 20, 0), Vector(0, 0, 1), 5), math.radians(-0.000004), math.radians(90.000004)),  # 0
    Part.ArcOfCircle(Part.Circle(Vector(-7.5, 20, 0), Vector(0, 0, 1), 5), math.radians(89.999996), math.radians(180.000004)),  # 1
    Part.LineSegment(Vector(-12.5, 20, 0), Vector(-12.5, -45, 0)),  # 2
    Part.ArcOfCircle(Part.Circle(Vector(-7.5, -45, 0), Vector(0, 0, 1), 5), math.radians(179.999996), math.radians(270.000004)),  # 3
    Part.ArcOfCircle(Part.Circle(Vector(-7.5, -45, 0), Vector(0, 0, 1), 5), math.radians(-90.000004), math.radians(0.000004)),  # 4
    Part.LineSegment(Vector(-2.5, -45, 0), Vector(-2.5, 20, 0)),  # 5
], False)
sketch4.addConstraint([
    Sketcher.Constraint("Tangent", 0, 2, 1, 1),
    Sketcher.Constraint("Tangent", 1, 2, 2, 1),
    Sketcher.Constraint("Tangent", 2, 2, 3, 1),
    Sketcher.Constraint("Tangent", 3, 2, 4, 1),
    Sketcher.Constraint("Tangent", 4, 2, 5, 1),
    Sketcher.Constraint("Tangent", 5, 2, 0, 1),
    Sketcher.Constraint("Vertical", 2),
    Sketcher.Constraint("Vertical", 5),
    Sketcher.Constraint("Equal", 0, 1),
    Sketcher.Constraint("Equal", 1, 3),
    Sketcher.Constraint("Vertical", 4, 3, 0, 2),
    Sketcher.Constraint("Vertical", 0, 2, 3, 2),
    Sketcher.Constraint("Radius", 0, 5.0),
    Sketcher.Constraint("DistanceY", 2, 2, 2, 1, 65.0),
    Sketcher.Constraint("DistanceY", -1, 1, 0, 3, 20.0),
    Sketcher.Constraint("DistanceX", 0, 3, -1, 1, 7.5),
])
pad4 = doc.addObject("PartDesign::Pad", "Pad003")
body4.addObject(pad4)
pad4.Profile = sketch4
pad4.Length = 5
body5 = doc.addObject("PartDesign::Body", "Body004")

# Sketch on XY plane
sketch5 = doc.addObject("Sketcher::SketchObject", "Sketch004")
body5.addObject(sketch5)
sketch5.AttachmentSupport = (doc.getObject("XY_Plane004"), [""])
sketch5.MapMode = "FlatFace"
sketch5.addGeometry([
    Part.ArcOfCircle(Part.Circle(Vector(7.5, -20, 0), Vector(0, 0, 1), 5), math.radians(179.999996), math.radians(270.000004)),  # 0
    Part.ArcOfCircle(Part.Circle(Vector(7.5, -20, 0), Vector(0, 0, 1), 5), math.radians(-90.000004), math.radians(0.000004)),  # 1
    Part.LineSegment(Vector(12.5, -20, 0), Vector(12.5, 45, 0)),  # 2
    Part.ArcOfCircle(Part.Circle(Vector(7.5, 45, 0), Vector(0, 0, 1), 5), math.radians(-0.000004), math.radians(90.000004)),  # 3
    Part.ArcOfCircle(Part.Circle(Vector(7.5, 45, 0), Vector(0, 0, 1), 5), math.radians(89.999996), math.radians(180.000004)),  # 4
    Part.LineSegment(Vector(2.5, 45, 0), Vector(2.5, -20, 0)),  # 5
], False)
sketch5.addConstraint([
    Sketcher.Constraint("Tangent", 0, 2, 1, 1),
    Sketcher.Constraint("Tangent", 1, 2, 2, 1),
    Sketcher.Constraint("Tangent", 2, 2, 3, 1),
    Sketcher.Constraint("Tangent", 3, 2, 4, 1),
    Sketcher.Constraint("Tangent", 4, 2, 5, 1),
    Sketcher.Constraint("Tangent", 5, 2, 0, 1),
    Sketcher.Constraint("Vertical", 2),
    Sketcher.Constraint("Vertical", 5),
    Sketcher.Constraint("Equal", 0, 1),
    Sketcher.Constraint("Equal", 1, 3),
    Sketcher.Constraint("Vertical", 4, 3, 0, 2),
    Sketcher.Constraint("Vertical", 0, 2, 3, 2),
    Sketcher.Constraint("Radius", 0, 5.0),
    Sketcher.Constraint("DistanceY", 2, 1, 2, 2, 65.0),
    Sketcher.Constraint("DistanceY", 0, 3, -1, 1, 20.0),
    Sketcher.Constraint("DistanceX", -1, 1, 0, 3, 7.5),
])
pad5 = doc.addObject("PartDesign::Pad", "Pad004")
body5.addObject(pad5)
pad5.Profile = sketch5
pad5.Length = 5
body6 = doc.addObject("PartDesign::Body", "Body005")

# Sketch on XY plane
sketch6 = doc.addObject("Sketcher::SketchObject", "Sketch005")
body6.addObject(sketch6)
sketch6.AttachmentSupport = (doc.getObject("XY_Plane005"), [""])
sketch6.MapMode = "FlatFace"
sketch6.addGeometry([
    Part.ArcOfCircle(Part.Circle(Vector(22.5, -10, 0), Vector(0, 0, 1), 5), math.radians(-90.000004), math.radians(0.000004)),  # 0
    Part.LineSegment(Vector(27.5, -10, 0), Vector(27.5, 10, 0)),  # 1
    Part.ArcOfCircle(Part.Circle(Vector(22.5, 10, 0), Vector(0, 0, 1), 5), math.radians(-0.000004), math.radians(90.000004)),  # 2
    Part.ArcOfCircle(Part.Circle(Vector(22.5, 10, 0), Vector(0, 0, 1), 5), math.radians(89.999996), math.radians(180.000004)),  # 3
    Part.LineSegment(Vector(17.5, 10, 0), Vector(17.5, -10, 0)),  # 4
    Part.ArcOfCircle(Part.Circle(Vector(22.5, -10, 0), Vector(0, 0, 1), 5), math.radians(179.999996), math.radians(270.000004)),  # 5
], False)
sketch6.addConstraint([
    Sketcher.Constraint("Tangent", 0, 2, 1, 1),
    Sketcher.Constraint("Tangent", 1, 2, 2, 1),
    Sketcher.Constraint("Tangent", 2, 2, 3, 1),
    Sketcher.Constraint("Tangent", 3, 2, 4, 1),
    Sketcher.Constraint("Tangent", 4, 2, 5, 1),
    Sketcher.Constraint("Tangent", 5, 2, 0, 1),
    Sketcher.Constraint("Vertical", 1),
    Sketcher.Constraint("Vertical", 4),
    Sketcher.Constraint("Equal", 0, 2),
    Sketcher.Constraint("Equal", 2, 3),
    Sketcher.Constraint("Symmetric", 2, 2, 5, 2, -1),
    Sketcher.Constraint("Vertical", 5, 3, 2, 2),
    Sketcher.Constraint("Radius", 0, 5.0),
    Sketcher.Constraint("DistanceY", 1, 1, 1, 2, 20.0),
    Sketcher.Constraint("DistanceX", -1, 1, 0, 3, 22.5),
])
pad6 = doc.addObject("PartDesign::Pad", "Pad005")
body6.addObject(pad6)
pad6.Profile = sketch6
pad6.Length = 5
body7 = doc.addObject("PartDesign::Body", "Body006")

# Sketch on XY plane
sketch7 = doc.addObject("Sketcher::SketchObject", "Sketch006")
body7.addObject(sketch7)
sketch7.AttachmentSupport = (doc.getObject("XY_Plane006"), [""])
sketch7.MapMode = "FlatFace"
sketch7.addGeometry([
    Part.ArcOfCircle(Part.Circle(Vector(37.5, 0, 0), Vector(0, 0, 1), 5), math.radians(179.999996), math.radians(270.000004)),  # 0
    Part.LineSegment(Vector(37.5, -5, 0), Vector(47.5, -5, 0)),  # 1
    Part.ArcOfCircle(Part.Circle(Vector(47.5, 0, 0), Vector(0, 0, 1), 5), math.radians(-90.000004), math.radians(0.000004)),  # 2
    Part.ArcOfCircle(Part.Circle(Vector(47.5, 0, 0), Vector(0, 0, 1), 5), math.radians(-0.000004), math.radians(90.000004)),  # 3
    Part.LineSegment(Vector(47.5, 5, 0), Vector(37.5, 5, 0)),  # 4
    Part.ArcOfCircle(Part.Circle(Vector(37.5, 0, 0), Vector(0, 0, 1), 5), math.radians(89.999996), math.radians(180.000004)),  # 5
], False)
sketch7.addConstraint([
    Sketcher.Constraint("Tangent", 0, 2, 1, 1),
    Sketcher.Constraint("Tangent", 1, 2, 2, 1),
    Sketcher.Constraint("Tangent", 2, 2, 3, 1),
    Sketcher.Constraint("Tangent", 3, 2, 4, 1),
    Sketcher.Constraint("Tangent", 4, 2, 5, 1),
    Sketcher.Constraint("Tangent", 5, 2, 0, 1),
    Sketcher.Constraint("Horizontal", 1),
    Sketcher.Constraint("Horizontal", 4),
    Sketcher.Constraint("Equal", 0, 2),
    Sketcher.Constraint("Equal", 2, 3),
    Sketcher.Constraint("PointOnObject", 0, 3, -1),
    Sketcher.Constraint("PointOnObject", 2, 2, -1),
    Sketcher.Constraint("PointOnObject", 5, 2, -1),
    Sketcher.Constraint("Radius", 0, 5.0),
    Sketcher.Constraint("DistanceX", 1, 1, 1, 2, 10.0),
    Sketcher.Constraint("DistanceX", -1, 1, 0, 3, 37.5),
])
pad7 = doc.addObject("PartDesign::Pad", "Pad006")
body7.addObject(pad7)
pad7.Profile = sketch7
pad7.Length = 5

doc.recompute()
